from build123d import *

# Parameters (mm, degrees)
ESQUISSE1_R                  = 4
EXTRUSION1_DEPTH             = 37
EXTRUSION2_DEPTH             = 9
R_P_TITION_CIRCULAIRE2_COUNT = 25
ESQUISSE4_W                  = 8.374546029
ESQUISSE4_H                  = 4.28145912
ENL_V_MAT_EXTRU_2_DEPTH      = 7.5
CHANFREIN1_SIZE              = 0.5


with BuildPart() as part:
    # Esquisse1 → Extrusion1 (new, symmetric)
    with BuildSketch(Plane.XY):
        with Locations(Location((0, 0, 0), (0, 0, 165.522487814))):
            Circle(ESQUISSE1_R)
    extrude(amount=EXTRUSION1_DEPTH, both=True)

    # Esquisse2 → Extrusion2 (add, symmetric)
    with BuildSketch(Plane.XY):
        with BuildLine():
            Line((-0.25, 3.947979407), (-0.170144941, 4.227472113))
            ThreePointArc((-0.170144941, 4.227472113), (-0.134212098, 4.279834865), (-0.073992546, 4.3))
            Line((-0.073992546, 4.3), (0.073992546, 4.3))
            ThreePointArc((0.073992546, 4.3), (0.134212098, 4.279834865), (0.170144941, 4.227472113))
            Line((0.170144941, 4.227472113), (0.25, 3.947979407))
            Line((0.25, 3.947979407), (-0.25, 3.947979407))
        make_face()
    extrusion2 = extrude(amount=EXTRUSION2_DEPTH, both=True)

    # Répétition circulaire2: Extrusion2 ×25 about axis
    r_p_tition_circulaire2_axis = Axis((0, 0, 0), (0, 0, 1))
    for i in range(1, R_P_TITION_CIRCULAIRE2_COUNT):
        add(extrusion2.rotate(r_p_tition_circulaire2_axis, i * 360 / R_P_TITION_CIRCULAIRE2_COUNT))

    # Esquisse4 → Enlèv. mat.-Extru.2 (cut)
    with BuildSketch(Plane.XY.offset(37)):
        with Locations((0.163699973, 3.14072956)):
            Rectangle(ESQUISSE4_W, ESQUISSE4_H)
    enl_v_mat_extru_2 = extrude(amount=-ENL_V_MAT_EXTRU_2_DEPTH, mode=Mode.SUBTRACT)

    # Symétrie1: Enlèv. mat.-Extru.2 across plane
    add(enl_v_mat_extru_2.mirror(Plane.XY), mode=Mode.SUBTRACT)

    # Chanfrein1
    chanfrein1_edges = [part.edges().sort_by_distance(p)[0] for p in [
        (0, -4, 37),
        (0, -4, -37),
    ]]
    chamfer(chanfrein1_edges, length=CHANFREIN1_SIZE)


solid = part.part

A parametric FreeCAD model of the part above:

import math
import FreeCAD as App
import Part
import Sketcher
Q = App.Units.Quantity


def edges_at(feature, points):
    """Names of the edges that pass closest to the given points."""
    edges = feature.Shape.Edges
    near = lambda p: min(range(len(edges)), key=lambda i: edges[i].distToShape(Part.Vertex(*p))[0])
    return sorted({f"Edge{near(p) + 1}" for p in points})


def add_polygon(sketch, points):
    """Adds a closed chain of lines whose ends are joined by coincident constraints."""
    first, n = sketch.GeometryCount, len(points)
    for a, b in zip(points, points[1:] + points[:1]):
        sketch.addGeometry(Part.LineSegment(App.Vector(*a, 0), App.Vector(*b, 0)), False)
    for i in range(n):
        sketch.addConstraint(Sketcher.Constraint("Coincident", first + i, 2, first + (i + 1) % n, 1))

doc = App.newDocument("Part")
params = doc.addObject("Spreadsheet::Sheet", "Params")
for row, (alias, value) in enumerate([
    ("sketch1_diameter", "8 mm"),
    ("pad1_length", "74 mm"),
    ("sketch2_radius", "0.1 mm"),
    ("sketch2_width", "0.5 mm"),
    ("pad2_length", "18 mm"),
    ("pocket1_length", "7.5 mm"),
    ("chamfer_size", "0.5 mm"),
], start=1):
    params.set(f"A{row}", alias)
    params.set(f"B{row}", "=" + value)
    params.setAlias(f"B{row}", alias)

body = doc.addObject("PartDesign::Body", "Body")

# Sketch on XY plane
sketch1 = body.newObject("Sketcher::SketchObject", "Sketch")
sketch1.AttachmentSupport = (doc.getObject("XY_Plane"), [""])
sketch1.MapMode = "FlatFace"
sketch1.addGeometry(Part.Circle(App.Vector(0, 0, 0), App.Vector(0, 0, 1), 4), False)
sketch1.addConstraint(Sketcher.Constraint("Coincident", 0, 3, -1, 1))
sketch1.addConstraint(Sketcher.Constraint("Diameter", 0, Q("8 mm")))
sketch1.setExpression("Constraints[1]", "Params.sketch1_diameter")
pad1 = body.newObject("PartDesign::Pad", "Pad")
pad1.Profile = sketch1
pad1.setExpression("Length", "Params.pad1_length")
pad1.Midplane = True

# Sketch on XY plane
sketch2 = body.newObject("Sketcher::SketchObject", "Sketch001")
sketch2.AttachmentSupport = (doc.getObject("XY_Plane"), [""])
sketch2.MapMode = "FlatFace"
sketch2.addGeometry(Part.LineSegment(App.Vector(-0.17, 4.23, 0), App.Vector(-0.25, 3.95, 0)), False)
sketch2.addGeometry(Part.LineSegment(App.Vector(-0.25, 3.95, 0), App.Vector(0.25, 3.95, 0)), False)
sketch2.addGeometry(Part.LineSegment(App.Vector(0.25, 3.95, 0), App.Vector(0.17, 4.23, 0)), False)
sketch2.addGeometry(Part.ArcOfCircle(Part.Circle(App.Vector(0.07, 4.2, 0), App.Vector(0, 0, 1), 0.1), math.radians(16), math.radians(90)), False)
sketch2.addGeometry(Part.LineSegment(App.Vector(0.07, 4.3, 0), App.Vector(-0.07, 4.3, 0)), False)
sketch2.addGeometry(Part.ArcOfCircle(Part.Circle(App.Vector(-0.07, 4.2, 0), App.Vector(0, 0, 1), 0.1), math.radians(90), math.radians(164)), False)
sketch2.addConstraint(Sketcher.Constraint("Coincident", 0, 2, 1, 1))
sketch2.addConstraint(Sketcher.Constraint("Coincident", 1, 2, 2, 1))
sketch2.addConstraint(Sketcher.Constraint("Tangent", 2, 2, 3, 1))
sketch2.addConstraint(Sketcher.Constraint("Tangent", 3, 2, 4, 1))
sketch2.addConstraint(Sketcher.Constraint("Tangent", 4, 2, 5, 1))
sketch2.addConstraint(Sketcher.Constraint("Tangent", 5, 2, 0, 1))
sketch2.addConstraint(Sketcher.Constraint("Horizontal", 1))
sketch2.addConstraint(Sketcher.Constraint("Horizontal", 4))
sketch2.addConstraint(Sketcher.Constraint("Equal", 3, 5))
sketch2.addConstraint(Sketcher.Constraint("Symmetric", 2, 2, 5, 2, -2))
sketch2.addConstraint(Sketcher.Constraint("Radius", 3, Q("0.1 mm")))
sketch2.addConstraint(Sketcher.Constraint("DistanceX", 1, 1, 1, 2, Q("0.5 mm")))
sketch2.addConstraint(Sketcher.Constraint("DistanceY", -1, 1, 3, 3, Q("4.2 mm")))
sketch2.addConstraint(Sketcher.Constraint("DistanceX", 4, 2, 4, 1, Q("0.147985 mm")))
sketch2.addConstraint(Sketcher.Constraint("DistanceY", -1, 1, 0, 2, Q("3.947979 mm")))
sketch2.setExpression("Constraints[10]", "Params.sketch2_radius")
sketch2.setExpression("Constraints[11]", "Params.sketch2_width")
pad2 = body.newObject("PartDesign::Pad", "Pad001")
pad2.Profile = sketch2
pad2.setExpression("Length", "Params.pad2_length")
pad2.Midplane = True
doc.recompute()

polarpattern = body.newObject("PartDesign::PolarPattern", "PolarPattern")
polarpattern.Originals = [pad2]
polarpattern.Axis = (doc.getObject("Z_Axis"), [""])
polarpattern.Angle = 360
polarpattern.Occurrences = 25
body.Tip = polarpattern

# Sketch on XY plane
sketch3 = body.newObject("Sketcher::SketchObject", "Sketch002")
sketch3.AttachmentSupport = (doc.getObject("XY_Plane"), [""])
sketch3.MapMode = "FlatFace"
sketch3.AttachmentOffset = App.Placement(App.Vector(0, 0, 37), App.Rotation())
add_polygon(sketch3, [(-4, 5.3), (-4, 1), (4.4, 1), (4.4, 5.3)])  # lines 0-3
sketch3.addConstraint(Sketcher.Constraint("Vertical", 0))
sketch3.addConstraint(Sketcher.Constraint("Horizontal", 1))
sketch3.addConstraint(Sketcher.Constraint("Vertical", 2))
sketch3.addConstraint(Sketcher.Constraint("Horizontal", 3))
sketch3.addConstraint(Sketcher.Constraint("DistanceY", -1, 1, 0, 2, Q("1 mm")))
sketch3.addConstraint(Sketcher.Constraint("DistanceY", 0, 2, 0, 1, Q("4.281459 mm")))
sketch3.addConstraint(Sketcher.Constraint("DistanceX", 1, 1, 1, 2, Q("8.374546 mm")))
sketch3.addConstraint(Sketcher.Constraint("DistanceX", 0, 2, -1, 1, Q("4.023573 mm")))
pocket1 = body.newObject("PartDesign::Pocket", "Pocket")
pocket1.Profile = sketch3
pocket1.setExpression("Length", "Params.pocket1_length")
doc.recompute()

mirrored = body.newObject("PartDesign::Mirrored", "Mirrored")
mirrored.Originals = [pocket1]
mirrored.MirrorPlane = (doc.getObject("XY_Plane"), [""])
body.Tip = mirrored
doc.recompute()

chamfer = body.newObject("PartDesign::Chamfer", "Chamfer")
chamfer.Base = (mirrored, edges_at(mirrored, [(0, -4, 37), (0, -4, -37)]))
chamfer.setExpression("Size", "Params.chamfer_size")

doc.recompute()
